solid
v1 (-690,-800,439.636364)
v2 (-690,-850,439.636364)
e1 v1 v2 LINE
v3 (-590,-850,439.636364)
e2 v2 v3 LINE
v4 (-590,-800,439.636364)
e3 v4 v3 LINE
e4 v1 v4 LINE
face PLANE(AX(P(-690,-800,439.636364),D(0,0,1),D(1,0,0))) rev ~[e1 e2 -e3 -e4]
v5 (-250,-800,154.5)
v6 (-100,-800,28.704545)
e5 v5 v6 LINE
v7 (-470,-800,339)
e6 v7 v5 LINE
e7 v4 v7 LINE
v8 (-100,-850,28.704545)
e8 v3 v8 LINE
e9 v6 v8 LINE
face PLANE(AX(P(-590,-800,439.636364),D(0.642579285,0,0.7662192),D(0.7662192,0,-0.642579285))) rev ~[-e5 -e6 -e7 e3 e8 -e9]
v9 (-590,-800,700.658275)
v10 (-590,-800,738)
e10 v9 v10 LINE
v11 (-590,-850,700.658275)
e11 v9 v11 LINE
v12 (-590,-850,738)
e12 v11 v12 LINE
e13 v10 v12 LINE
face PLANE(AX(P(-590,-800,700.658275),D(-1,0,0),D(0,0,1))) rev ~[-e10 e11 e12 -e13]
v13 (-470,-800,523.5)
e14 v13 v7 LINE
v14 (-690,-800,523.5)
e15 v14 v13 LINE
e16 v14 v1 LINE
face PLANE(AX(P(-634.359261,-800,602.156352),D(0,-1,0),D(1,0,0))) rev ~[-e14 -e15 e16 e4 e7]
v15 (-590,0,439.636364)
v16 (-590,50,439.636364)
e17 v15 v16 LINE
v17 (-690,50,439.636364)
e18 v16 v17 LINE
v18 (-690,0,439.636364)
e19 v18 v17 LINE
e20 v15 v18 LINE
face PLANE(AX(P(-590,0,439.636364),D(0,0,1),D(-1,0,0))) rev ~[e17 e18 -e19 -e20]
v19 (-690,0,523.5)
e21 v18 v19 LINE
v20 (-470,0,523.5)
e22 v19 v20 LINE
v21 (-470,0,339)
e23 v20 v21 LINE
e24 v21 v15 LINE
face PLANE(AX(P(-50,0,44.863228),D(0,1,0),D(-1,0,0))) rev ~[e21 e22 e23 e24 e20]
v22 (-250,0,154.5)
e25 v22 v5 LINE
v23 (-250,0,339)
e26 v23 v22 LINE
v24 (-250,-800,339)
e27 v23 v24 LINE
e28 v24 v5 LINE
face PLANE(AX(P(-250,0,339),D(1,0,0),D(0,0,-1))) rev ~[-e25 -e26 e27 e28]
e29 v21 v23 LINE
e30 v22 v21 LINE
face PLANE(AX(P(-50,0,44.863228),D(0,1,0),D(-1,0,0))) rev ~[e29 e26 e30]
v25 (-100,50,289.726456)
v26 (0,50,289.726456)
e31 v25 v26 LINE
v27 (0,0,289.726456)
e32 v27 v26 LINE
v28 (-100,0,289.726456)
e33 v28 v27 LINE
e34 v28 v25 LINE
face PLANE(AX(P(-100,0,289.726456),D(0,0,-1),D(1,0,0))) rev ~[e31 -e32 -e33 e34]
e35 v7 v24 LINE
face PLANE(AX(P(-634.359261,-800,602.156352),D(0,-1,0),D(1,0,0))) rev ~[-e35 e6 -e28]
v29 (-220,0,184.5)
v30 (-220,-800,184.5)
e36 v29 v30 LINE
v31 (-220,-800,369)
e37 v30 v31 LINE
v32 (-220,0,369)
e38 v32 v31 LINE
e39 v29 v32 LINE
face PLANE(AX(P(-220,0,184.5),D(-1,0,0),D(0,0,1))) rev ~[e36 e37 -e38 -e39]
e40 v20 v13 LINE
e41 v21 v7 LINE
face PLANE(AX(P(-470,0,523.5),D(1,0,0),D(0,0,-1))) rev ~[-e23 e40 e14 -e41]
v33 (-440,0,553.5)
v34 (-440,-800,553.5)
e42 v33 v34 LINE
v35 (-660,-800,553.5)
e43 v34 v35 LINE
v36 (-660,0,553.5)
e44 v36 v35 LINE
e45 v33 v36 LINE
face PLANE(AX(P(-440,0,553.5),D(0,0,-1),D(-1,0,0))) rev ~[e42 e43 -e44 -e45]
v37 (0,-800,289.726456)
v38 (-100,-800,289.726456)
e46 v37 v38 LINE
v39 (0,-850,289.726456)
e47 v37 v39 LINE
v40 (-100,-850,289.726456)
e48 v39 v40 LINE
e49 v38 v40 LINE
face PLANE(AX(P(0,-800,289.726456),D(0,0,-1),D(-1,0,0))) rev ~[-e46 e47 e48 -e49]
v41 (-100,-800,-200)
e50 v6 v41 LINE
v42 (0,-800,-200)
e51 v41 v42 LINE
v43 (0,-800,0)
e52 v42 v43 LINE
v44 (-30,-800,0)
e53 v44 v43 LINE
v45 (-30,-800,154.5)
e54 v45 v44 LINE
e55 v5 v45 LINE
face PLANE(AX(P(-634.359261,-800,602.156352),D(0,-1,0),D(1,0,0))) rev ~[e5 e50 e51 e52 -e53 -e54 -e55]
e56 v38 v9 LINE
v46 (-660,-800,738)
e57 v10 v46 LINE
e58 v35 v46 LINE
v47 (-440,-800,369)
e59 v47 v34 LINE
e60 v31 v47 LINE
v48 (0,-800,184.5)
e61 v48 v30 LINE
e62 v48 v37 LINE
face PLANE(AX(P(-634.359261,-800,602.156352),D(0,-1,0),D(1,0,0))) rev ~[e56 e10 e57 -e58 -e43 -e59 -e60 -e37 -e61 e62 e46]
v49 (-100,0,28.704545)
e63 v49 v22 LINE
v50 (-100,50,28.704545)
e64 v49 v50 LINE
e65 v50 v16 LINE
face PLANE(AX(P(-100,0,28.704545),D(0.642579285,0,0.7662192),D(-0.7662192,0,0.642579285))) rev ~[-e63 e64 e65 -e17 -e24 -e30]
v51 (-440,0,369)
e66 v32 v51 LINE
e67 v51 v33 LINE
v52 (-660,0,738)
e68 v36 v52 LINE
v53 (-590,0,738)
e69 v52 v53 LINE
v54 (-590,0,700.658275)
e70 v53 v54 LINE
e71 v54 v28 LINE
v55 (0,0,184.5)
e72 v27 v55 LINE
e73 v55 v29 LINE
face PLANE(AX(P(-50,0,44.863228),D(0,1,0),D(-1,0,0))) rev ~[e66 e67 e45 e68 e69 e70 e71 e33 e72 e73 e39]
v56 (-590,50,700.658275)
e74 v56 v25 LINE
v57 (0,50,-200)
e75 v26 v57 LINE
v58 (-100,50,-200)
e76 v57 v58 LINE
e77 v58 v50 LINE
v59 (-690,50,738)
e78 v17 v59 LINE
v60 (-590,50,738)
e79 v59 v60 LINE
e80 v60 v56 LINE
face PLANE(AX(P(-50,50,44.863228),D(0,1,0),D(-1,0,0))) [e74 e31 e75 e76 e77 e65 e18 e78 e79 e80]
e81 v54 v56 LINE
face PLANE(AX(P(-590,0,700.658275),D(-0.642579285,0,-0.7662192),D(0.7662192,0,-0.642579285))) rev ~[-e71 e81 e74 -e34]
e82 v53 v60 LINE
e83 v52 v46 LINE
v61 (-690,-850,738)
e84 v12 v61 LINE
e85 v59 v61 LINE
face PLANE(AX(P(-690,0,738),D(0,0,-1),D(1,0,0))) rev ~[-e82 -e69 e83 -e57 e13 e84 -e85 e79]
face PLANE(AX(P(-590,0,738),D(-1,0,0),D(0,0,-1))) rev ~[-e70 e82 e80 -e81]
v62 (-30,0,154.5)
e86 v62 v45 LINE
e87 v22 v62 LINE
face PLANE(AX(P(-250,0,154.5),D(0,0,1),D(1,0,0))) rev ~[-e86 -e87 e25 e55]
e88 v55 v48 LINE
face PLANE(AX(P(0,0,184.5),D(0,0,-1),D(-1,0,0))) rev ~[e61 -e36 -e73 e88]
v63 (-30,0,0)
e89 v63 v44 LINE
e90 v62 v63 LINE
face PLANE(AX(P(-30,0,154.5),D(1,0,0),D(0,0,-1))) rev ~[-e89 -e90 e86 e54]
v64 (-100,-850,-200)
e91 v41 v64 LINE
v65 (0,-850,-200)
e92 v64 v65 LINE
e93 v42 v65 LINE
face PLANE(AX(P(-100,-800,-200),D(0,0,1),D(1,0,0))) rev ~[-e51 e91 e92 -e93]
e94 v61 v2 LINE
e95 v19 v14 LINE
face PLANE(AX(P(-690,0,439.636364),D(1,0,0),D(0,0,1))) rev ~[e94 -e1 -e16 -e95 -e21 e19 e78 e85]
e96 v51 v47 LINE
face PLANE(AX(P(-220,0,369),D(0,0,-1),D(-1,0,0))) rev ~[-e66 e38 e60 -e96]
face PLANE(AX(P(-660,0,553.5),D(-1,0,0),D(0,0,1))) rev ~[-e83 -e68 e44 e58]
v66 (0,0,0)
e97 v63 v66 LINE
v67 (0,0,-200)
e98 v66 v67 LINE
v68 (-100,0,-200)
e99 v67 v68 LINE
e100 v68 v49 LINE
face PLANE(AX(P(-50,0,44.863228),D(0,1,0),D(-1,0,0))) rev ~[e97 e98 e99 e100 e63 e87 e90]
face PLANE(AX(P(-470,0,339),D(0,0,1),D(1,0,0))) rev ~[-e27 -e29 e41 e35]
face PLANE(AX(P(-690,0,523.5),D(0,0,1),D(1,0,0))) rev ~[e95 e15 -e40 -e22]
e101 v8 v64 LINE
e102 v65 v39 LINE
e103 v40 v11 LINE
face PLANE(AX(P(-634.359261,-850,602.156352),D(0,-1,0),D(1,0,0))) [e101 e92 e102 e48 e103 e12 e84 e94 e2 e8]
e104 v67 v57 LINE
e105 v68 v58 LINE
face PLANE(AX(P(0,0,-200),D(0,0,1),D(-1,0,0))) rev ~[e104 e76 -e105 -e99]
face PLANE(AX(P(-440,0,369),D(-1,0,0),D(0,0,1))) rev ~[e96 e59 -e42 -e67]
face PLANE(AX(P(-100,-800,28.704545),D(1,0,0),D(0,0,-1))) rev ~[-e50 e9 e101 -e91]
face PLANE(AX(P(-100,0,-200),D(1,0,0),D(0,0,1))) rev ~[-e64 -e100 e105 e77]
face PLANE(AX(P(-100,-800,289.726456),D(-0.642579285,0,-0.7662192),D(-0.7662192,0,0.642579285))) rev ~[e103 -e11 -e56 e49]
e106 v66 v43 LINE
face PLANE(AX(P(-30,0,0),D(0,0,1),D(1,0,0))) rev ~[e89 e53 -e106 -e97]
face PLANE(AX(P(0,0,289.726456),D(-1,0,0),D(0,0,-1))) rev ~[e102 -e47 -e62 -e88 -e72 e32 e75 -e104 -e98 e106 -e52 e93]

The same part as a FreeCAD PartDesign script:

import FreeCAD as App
import Part
import Sketcher
Q = App.Units.Quantity


def add_polygon(sketch, points):
    """Adds a closed chain of lines whose ends are joined by coincident constraints."""
    first, n = sketch.GeometryCount, len(points)
    for a, b in zip(points, points[1:] + points[:1]):
        sketch.addGeometry(Part.LineSegment(App.Vector(*a, 0), App.Vector(*b, 0)), False)
    for i in range(n):
        sketch.addConstraint(Sketcher.Constraint("Coincident", first + i, 2, first + (i + 1) % n, 1))

doc = App.newDocument("Part")
body = doc.addObject("PartDesign::Body", "Body")

sketch1 = body.newObject("Sketcher::SketchObject", "Sketch")
sketch1.AttachmentSupport = (doc.getObject("XZ_Plane"), [""])
sketch1.MapMode = "FlatFace"
add_polygon(sketch1, [(-30, 0), (0, 0), (0, 184), (-220, 184), (-220, 369), (-440, 369), (-440, 554), (-660, 554), (-660, 738), (-690, 738), (-690, 524), (-470, 524), (-470, 339), (-250, 339), (-250, 154), (-30, 154)])
sketch1.addConstraint([
    Sketcher.Constraint("Horizontal", 0),
    Sketcher.Constraint("Vertical", 1),
    Sketcher.Constraint("Horizontal", 2),
    Sketcher.Constraint("Vertical", 3),
    Sketcher.Constraint("Horizontal", 4),
    Sketcher.Constraint("Vertical", 5),
    Sketcher.Constraint("Horizontal", 6),
    Sketcher.Constraint("Vertical", 7),
    Sketcher.Constraint("Horizontal", 8),
    Sketcher.Constraint("Vertical", 9),
    Sketcher.Constraint("Horizontal", 10),
    Sketcher.Constraint("Vertical", 11),
    Sketcher.Constraint("Horizontal", 12),
    Sketcher.Constraint("Vertical", 13),
    Sketcher.Constraint("Horizontal", 14),
    Sketcher.Constraint("Vertical", 15),
    Sketcher.Constraint("Coincident", 0, 2, -1, 1),
    Sketcher.Constraint("Equal", 2, 4),
    Sketcher.Constraint("Equal", 4, 6),
    Sketcher.Constraint("Equal", 0, 8),
    Sketcher.Constraint("Equal", 6, 10),
    Sketcher.Constraint("Equal", 10, 12),
    Sketcher.Constraint("Equal", 1, 3),
    Sketcher.Constraint("Equal", 3, 5),
    Sketcher.Constraint("Equal", 5, 7),
    Sketcher.Constraint("Equal", 7, 11),
    Sketcher.Constraint("Equal", 11, 13),
    Sketcher.Constraint("DistanceX", 0, 1, 0, 2, Q("30 mm")),
    Sketcher.Constraint("DistanceX", 2, 2, 2, 1, Q("220 mm")),
    Sketcher.Constraint("DistanceY", 1, 1, 1, 2, Q("184.5 mm")),
    Sketcher.Constraint("DistanceY", 9, 2, 9, 1, Q("214.5 mm")),
])
pad1 = body.newObject("PartDesign::Pad", "Pad")
pad1.Profile = sketch1
pad1.Length = 800

sketch2 = body.newObject("Sketcher::SketchObject", "Sketch001")
sketch2.AttachmentSupport = (doc.getObject("XZ_Plane"), [""])
sketch2.MapMode = "FlatFace"
sketch2.AttachmentOffset = App.Placement(App.Vector(0, 0, 800), App.Rotation())
add_polygon(sketch2, [(-690, 738), (-690, 440), (-590, 440), (-100, 29), (-100, -200), (0, -200), (0, 290), (-100, 290), (-590, 701), (-590, 738)])
sketch2.addConstraint([
    Sketcher.Constraint("Vertical", 0),
    Sketcher.Constraint("Horizontal", 1),
    Sketcher.Constraint("Vertical", 3),
    Sketcher.Constraint("Horizontal", 4),
    Sketcher.Constraint("Vertical", 5),
    Sketcher.Constraint("Horizontal", 6),
    Sketcher.Constraint("Vertical", 8),
    Sketcher.Constraint("Horizontal", 9),
    Sketcher.Constraint("PointOnObject", 4, 2, -2),
    Sketcher.Constraint("Parallel", 2, 7),
    Sketcher.Constraint("Vertical", 3, 2, 6, 2),
    Sketcher.Constraint("Vertical", 1, 2, 7, 2),
    Sketcher.Constraint("Equal", 1, 4),
    Sketcher.Constraint("DistanceX", 1, 1, 1, 2, Q("100 mm")),
    Sketcher.Constraint("DistanceX", 0, 2, -1, 1, Q("690 mm")),
    Sketcher.Constraint("DistanceY", 3, 2, -1, 1, Q("200 mm")),
    Sketcher.Constraint("DistanceY", -1, 1, 8, 2, Q("738 mm")),
    Sketcher.Constraint("DistanceY", 0, 2, 0, 1, Q("298.363636 mm")),
    Sketcher.Constraint("DistanceY", 3, 2, 3, 1, Q("228.704545 mm")),
    Sketcher.Constraint("DistanceY", 5, 1, 5, 2, Q("489.726456 mm")),
])
pad2 = body.newObject("PartDesign::Pad", "Pad001")
pad2.Profile = sketch2
pad2.Length = 50

sketch3 = body.newObject("Sketcher::SketchObject", "Sketch002")
sketch3.AttachmentSupport = (doc.getObject("XZ_Plane"), [""])
sketch3.MapMode = "FlatFace"
add_polygon(sketch3, [(0, 290), (0, -200), (-100, -200), (-100, 29), (-590, 440), (-690, 440), (-690, 738), (-590, 738), (-590, 701), (-100, 290)])
sketch3.addConstraint([
    Sketcher.Constraint("Vertical", 0),
    Sketcher.Constraint("Horizontal", 1),
    Sketcher.Constraint("Vertical", 2),
    Sketcher.Constraint("Horizontal", 4),
    Sketcher.Constraint("Vertical", 5),
    Sketcher.Constraint("Horizontal", 6),
    Sketcher.Constraint("Vertical", 7),
    Sketcher.Constraint("Horizontal", 9),
    Sketcher.Constraint("PointOnObject", 0, 2, -2),
    Sketcher.Constraint("Parallel", 3, 8),
    Sketcher.Constraint("Vertical", 3, 2, 6, 2),
    Sketcher.Constraint("Vertical", 2, 2, 8, 2),
    Sketcher.Constraint("Equal", 1, 4),
    Sketcher.Constraint("DistanceX", 1, 2, 1, 1, Q("100 mm")),
    Sketcher.Constraint("DistanceY", 0, 2, -1, 1, Q("200 mm")),
    Sketcher.Constraint("DistanceX", 3, 2, -1, 1, Q("590 mm")),
    Sketcher.Constraint("DistanceY", -1, 1, 5, 2, Q("738 mm")),
    Sketcher.Constraint("DistanceY", 0, 2, 0, 1, Q("489.726456 mm")),
    Sketcher.Constraint("DistanceY", 2, 1, 2, 2, Q("228.704545 mm")),
    Sketcher.Constraint("DistanceY", 5, 1, 5, 2, Q("298.363636 mm")),
])
pad3 = body.newObject("PartDesign::Pad", "Pad002")
pad3.Profile = sketch3
pad3.Length = 50
pad3.Reversed = True

doc.recompute()
